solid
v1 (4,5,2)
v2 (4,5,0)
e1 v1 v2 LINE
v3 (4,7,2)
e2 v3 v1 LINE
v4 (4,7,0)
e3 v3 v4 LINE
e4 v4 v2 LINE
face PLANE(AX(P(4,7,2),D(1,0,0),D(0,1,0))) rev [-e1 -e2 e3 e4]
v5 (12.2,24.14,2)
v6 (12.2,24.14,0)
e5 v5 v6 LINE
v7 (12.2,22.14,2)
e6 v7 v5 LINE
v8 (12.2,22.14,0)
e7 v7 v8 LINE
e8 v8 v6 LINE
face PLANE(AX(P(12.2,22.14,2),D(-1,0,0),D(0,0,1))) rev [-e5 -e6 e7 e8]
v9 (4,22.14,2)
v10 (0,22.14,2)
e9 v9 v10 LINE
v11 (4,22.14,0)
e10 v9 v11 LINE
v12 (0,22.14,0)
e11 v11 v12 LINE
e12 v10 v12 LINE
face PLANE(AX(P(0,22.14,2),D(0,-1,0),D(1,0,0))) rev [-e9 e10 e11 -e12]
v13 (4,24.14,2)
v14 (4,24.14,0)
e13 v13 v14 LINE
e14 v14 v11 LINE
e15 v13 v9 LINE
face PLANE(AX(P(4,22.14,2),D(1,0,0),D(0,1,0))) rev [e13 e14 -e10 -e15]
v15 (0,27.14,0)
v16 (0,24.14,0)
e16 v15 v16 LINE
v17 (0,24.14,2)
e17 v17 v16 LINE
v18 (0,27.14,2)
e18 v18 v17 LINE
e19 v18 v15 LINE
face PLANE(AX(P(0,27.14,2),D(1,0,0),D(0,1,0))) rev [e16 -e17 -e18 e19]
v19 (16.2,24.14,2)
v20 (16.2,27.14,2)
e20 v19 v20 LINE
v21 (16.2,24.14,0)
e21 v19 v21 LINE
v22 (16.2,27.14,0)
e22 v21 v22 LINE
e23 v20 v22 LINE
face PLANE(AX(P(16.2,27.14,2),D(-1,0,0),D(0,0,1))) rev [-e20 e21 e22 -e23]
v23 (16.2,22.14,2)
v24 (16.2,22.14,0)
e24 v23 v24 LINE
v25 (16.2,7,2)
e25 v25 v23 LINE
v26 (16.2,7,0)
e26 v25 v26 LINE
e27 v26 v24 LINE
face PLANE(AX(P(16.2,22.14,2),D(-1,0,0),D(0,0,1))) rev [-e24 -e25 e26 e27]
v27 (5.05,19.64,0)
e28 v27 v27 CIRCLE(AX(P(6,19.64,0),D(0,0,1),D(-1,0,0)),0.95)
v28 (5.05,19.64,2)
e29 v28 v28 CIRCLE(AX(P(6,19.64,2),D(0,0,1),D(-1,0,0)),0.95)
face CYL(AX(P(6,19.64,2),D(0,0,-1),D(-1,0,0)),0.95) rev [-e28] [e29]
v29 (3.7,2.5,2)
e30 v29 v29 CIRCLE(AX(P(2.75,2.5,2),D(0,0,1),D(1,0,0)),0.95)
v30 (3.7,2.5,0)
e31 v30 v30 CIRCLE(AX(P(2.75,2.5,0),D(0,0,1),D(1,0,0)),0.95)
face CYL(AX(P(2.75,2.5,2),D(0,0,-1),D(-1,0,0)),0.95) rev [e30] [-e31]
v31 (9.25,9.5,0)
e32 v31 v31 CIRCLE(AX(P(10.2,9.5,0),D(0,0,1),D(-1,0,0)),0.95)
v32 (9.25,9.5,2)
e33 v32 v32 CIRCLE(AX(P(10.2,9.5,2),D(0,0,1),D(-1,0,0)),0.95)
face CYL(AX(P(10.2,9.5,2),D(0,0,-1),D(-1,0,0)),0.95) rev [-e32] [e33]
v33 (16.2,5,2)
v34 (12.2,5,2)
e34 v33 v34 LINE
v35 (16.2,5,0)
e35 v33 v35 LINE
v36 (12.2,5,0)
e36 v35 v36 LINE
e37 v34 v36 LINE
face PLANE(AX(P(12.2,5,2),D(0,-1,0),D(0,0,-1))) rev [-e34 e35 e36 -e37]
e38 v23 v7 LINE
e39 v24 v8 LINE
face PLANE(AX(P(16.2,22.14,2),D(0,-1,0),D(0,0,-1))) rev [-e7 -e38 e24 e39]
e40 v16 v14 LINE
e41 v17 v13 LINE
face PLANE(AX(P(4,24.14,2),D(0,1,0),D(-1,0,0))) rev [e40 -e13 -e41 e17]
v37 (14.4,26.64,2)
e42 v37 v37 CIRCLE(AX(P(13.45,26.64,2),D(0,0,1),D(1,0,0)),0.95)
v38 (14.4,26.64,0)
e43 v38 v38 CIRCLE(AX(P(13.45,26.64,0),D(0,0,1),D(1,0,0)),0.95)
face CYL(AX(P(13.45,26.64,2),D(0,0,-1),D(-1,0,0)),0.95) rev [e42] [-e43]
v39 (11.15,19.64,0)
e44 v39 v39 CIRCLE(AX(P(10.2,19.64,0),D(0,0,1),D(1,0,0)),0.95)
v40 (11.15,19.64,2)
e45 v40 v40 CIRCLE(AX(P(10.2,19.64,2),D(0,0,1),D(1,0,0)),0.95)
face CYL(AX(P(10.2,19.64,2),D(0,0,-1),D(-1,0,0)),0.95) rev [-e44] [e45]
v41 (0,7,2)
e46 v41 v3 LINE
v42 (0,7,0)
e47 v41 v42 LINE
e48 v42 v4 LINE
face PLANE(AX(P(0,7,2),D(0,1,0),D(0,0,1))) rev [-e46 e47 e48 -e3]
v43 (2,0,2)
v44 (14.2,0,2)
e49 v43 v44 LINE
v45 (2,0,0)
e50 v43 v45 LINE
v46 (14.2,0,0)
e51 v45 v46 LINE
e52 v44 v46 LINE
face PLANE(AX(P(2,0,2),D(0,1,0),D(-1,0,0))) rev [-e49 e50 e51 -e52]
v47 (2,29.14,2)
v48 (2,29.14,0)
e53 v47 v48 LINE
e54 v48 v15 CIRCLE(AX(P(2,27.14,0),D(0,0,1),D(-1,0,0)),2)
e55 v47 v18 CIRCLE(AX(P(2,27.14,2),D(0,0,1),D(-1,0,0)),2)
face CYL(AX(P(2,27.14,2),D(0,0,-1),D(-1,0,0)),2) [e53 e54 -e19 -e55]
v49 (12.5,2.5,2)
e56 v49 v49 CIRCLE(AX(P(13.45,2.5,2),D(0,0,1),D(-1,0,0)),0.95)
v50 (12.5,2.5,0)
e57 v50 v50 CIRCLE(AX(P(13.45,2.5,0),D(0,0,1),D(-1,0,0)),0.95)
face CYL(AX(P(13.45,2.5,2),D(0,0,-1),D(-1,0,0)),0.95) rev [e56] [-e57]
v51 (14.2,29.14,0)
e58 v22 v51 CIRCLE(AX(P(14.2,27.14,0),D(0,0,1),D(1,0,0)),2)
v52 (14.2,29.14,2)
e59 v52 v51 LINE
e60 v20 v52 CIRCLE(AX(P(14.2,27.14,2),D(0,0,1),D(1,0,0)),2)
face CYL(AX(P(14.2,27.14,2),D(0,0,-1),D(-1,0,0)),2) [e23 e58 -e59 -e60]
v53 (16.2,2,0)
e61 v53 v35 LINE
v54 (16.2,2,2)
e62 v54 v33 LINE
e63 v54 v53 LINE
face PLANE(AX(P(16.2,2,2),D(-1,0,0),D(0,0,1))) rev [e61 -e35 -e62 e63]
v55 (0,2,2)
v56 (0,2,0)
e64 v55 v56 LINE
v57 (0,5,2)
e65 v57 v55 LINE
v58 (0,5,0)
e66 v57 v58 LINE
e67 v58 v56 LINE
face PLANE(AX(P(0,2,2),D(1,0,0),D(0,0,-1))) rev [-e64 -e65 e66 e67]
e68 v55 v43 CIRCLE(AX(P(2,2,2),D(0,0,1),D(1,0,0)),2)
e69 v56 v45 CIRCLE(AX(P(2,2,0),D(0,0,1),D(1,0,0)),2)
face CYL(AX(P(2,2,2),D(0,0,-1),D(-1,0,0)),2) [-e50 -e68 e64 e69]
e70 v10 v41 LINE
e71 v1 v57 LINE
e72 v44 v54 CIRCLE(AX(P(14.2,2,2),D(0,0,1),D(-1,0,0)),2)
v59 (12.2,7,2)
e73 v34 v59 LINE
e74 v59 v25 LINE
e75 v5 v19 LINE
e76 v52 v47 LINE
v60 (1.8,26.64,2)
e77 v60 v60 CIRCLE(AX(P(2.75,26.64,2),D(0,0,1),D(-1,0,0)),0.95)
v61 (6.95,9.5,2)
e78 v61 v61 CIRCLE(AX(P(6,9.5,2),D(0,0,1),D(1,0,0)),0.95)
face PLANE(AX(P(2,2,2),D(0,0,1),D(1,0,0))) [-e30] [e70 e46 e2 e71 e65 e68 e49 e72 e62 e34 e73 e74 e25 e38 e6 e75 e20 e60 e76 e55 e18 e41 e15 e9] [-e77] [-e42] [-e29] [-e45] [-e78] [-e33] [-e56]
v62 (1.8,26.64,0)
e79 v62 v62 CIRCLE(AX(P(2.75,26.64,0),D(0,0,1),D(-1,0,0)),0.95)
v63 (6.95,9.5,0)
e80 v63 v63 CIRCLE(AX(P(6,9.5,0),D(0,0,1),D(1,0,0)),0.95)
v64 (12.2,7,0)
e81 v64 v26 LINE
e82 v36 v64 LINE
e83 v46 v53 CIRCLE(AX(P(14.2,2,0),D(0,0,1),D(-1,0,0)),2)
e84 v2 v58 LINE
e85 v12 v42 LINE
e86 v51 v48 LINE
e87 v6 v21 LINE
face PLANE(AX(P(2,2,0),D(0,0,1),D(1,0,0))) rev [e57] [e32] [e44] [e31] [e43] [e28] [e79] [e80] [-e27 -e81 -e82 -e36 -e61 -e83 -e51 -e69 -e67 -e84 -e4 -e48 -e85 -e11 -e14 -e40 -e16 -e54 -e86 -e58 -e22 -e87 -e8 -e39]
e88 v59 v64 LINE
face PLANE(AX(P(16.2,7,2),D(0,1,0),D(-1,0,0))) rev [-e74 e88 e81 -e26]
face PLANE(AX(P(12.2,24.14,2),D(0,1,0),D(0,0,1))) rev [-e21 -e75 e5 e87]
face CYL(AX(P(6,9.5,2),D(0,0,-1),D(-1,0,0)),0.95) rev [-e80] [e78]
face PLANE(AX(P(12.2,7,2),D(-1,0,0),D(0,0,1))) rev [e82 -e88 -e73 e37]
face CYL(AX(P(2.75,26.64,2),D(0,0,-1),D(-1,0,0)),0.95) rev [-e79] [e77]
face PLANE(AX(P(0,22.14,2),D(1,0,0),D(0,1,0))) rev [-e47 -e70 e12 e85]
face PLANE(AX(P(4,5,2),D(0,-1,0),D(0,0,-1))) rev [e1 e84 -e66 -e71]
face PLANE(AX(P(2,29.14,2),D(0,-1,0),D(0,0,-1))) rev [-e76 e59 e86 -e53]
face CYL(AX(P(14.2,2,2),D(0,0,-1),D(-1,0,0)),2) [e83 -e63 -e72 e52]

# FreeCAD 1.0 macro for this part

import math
import FreeCAD as App
import Part
import Sketcher
Q = App.Units.Quantity

doc = App.newDocument("Part")
body = doc.addObject("PartDesign::Body", "Body")

# Sketch on XY plane
sketch1 = body.newObject("Sketcher::SketchObject", "Sketch")
sketch1.AttachmentSupport = (doc.getObject("XY_Plane"), [""])
sketch1.MapMode = "FlatFace"
sketch1.addGeometry([
    Part.LineSegment(App.Vector(0, 22.14, 0), App.Vector(0, 7, 0)),  # 0
    Part.LineSegment(App.Vector(0, 7, 0), App.Vector(4, 7, 0)),  # 1
    Part.LineSegment(App.Vector(4, 7, 0), App.Vector(4, 5, 0)),  # 2
    Part.LineSegment(App.Vector(4, 5, 0), App.Vector(0, 5, 0)),  # 3
    Part.LineSegment(App.Vector(0, 5, 0), App.Vector(0, 2, 0)),  # 4
    Part.ArcOfCircle(Part.Circle(App.Vector(2, 2, 0), App.Vector(0, 0, 1), 2), math.radians(-180), math.radians(-90)),  # 5
    Part.LineSegment(App.Vector(2, 0, 0), App.Vector(14.2, 0, 0)),  # 6
    Part.ArcOfCircle(Part.Circle(App.Vector(14.2, 2, 0), App.Vector(0, 0, 1), 2), math.radians(-90), math.radians(0)),  # 7
    Part.LineSegment(App.Vector(16.2, 2, 0), App.Vector(16.2, 5, 0)),  # 8
    Part.LineSegment(App.Vector(16.2, 5, 0), App.Vector(12.2, 5, 0)),  # 9
    Part.LineSegment(App.Vector(12.2, 5, 0), App.Vector(12.2, 7, 0)),  # 10
    Part.LineSegment(App.Vector(12.2, 7, 0), App.Vector(16.2, 7, 0)),  # 11
    Part.LineSegment(App.Vector(16.2, 7, 0), App.Vector(16.2, 22.14, 0)),  # 12
    Part.LineSegment(App.Vector(16.2, 22.14, 0), App.Vector(12.2, 22.14, 0)),  # 13
    Part.LineSegment(App.Vector(12.2, 22.14, 0), App.Vector(12.2, 24.14, 0)),  # 14
    Part.LineSegment(App.Vector(12.2, 24.14, 0), App.Vector(16.2, 24.14, 0)),  # 15
    Part.LineSegment(App.Vector(16.2, 24.14, 0), App.Vector(16.2, 27.14, 0)),  # 16
    Part.ArcOfCircle(Part.Circle(App.Vector(14.2, 27.14, 0), App.Vector(0, 0, 1), 2), math.radians(0), math.radians(90)),  # 17
    Part.LineSegment(App.Vector(14.2, 29.14, 0), App.Vector(2, 29.14, 0)),  # 18
    Part.ArcOfCircle(Part.Circle(App.Vector(2, 27.14, 0), App.Vector(0, 0, 1), 2), math.radians(90), math.radians(180)),  # 19
    Part.LineSegment(App.Vector(0, 27.14, 0), App.Vector(0, 24.14, 0)),  # 20
    Part.LineSegment(App.Vector(0, 24.14, 0), App.Vector(4, 24.14, 0)),  # 21
    Part.LineSegment(App.Vector(4, 24.14, 0), App.Vector(4, 22.14, 0)),  # 22
    Part.LineSegment(App.Vector(4, 22.14, 0), App.Vector(0, 22.14, 0)),  # 23
    Part.Circle(App.Vector(2.75, 2.5, 0), App.Vector(0, 0, 1), 0.95),  # 24
    Part.Circle(App.Vector(6, 9.5, 0), App.Vector(0, 0, 1), 0.95),  # 25
    Part.Circle(App.Vector(13.45, 2.5, 0), App.Vector(0, 0, 1), 0.95),  # 26
    Part.Circle(App.Vector(10.2, 9.5, 0), App.Vector(0, 0, 1), 0.95),  # 27
    Part.Circle(App.Vector(6, 19.64, 0), App.Vector(0, 0, 1), 0.95),  # 28
    Part.Circle(App.Vector(2.75, 26.64, 0), App.Vector(0, 0, 1), 0.95),  # 29
    Part.Circle(App.Vector(10.2, 19.64, 0), App.Vector(0, 0, 1), 0.95),  # 30
    Part.Circle(App.Vector(13.45, 26.64, 0), App.Vector(0, 0, 1), 0.95),  # 31
], False)
sketch1.addConstraint([
    Sketcher.Constraint("Coincident", 0, 2, 1, 1),
    Sketcher.Constraint("Coincident", 1, 2, 2, 1),
    Sketcher.Constraint("Coincident", 2, 2, 3, 1),
    Sketcher.Constraint("Coincident", 3, 2, 4, 1),
    Sketcher.Constraint("Tangent", 4, 2, 5, 1),
    Sketcher.Constraint("Tangent", 5, 2, 6, 1),
    Sketcher.Constraint("Tangent", 6, 2, 7, 1),
    Sketcher.Constraint("Tangent", 7, 2, 8, 1),
    Sketcher.Constraint("Coincident", 8, 2, 9, 1),
    Sketcher.Constraint("Coincident", 9, 2, 10, 1),
    Sketcher.Constraint("Coincident", 10, 2, 11, 1),
    Sketcher.Constraint("Coincident", 11, 2, 12, 1),
    Sketcher.Constraint("Coincident", 12, 2, 13, 1),
    Sketcher.Constraint("Coincident", 13, 2, 14, 1),
    Sketcher.Constraint("Coincident", 14, 2, 15, 1),
    Sketcher.Constraint("Coincident", 15, 2, 16, 1),
    Sketcher.Constraint("Tangent", 16, 2, 17, 1),
    Sketcher.Constraint("Tangent", 17, 2, 18, 1),
    Sketcher.Constraint("Tangent", 18, 2, 19, 1),
    Sketcher.Constraint("Tangent", 19, 2, 20, 1),
    Sketcher.Constraint("Coincident", 20, 2, 21, 1),
    Sketcher.Constraint("Coincident", 21, 2, 22, 1),
    Sketcher.Constraint("Coincident", 22, 2, 23, 1),
    Sketcher.Constraint("Coincident", 23, 2, 0, 1),
    Sketcher.Constraint("Vertical", 0),
    Sketcher.Constraint("Horizontal", 1),
    Sketcher.Constraint("Vertical", 2),
    Sketcher.Constraint("Horizontal", 3),
    Sketcher.Constraint("Vertical", 4),
    Sketcher.Constraint("Horizontal", 6),
    Sketcher.Constraint("Vertical", 8),
    Sketcher.Constraint("Horizontal", 9),
    Sketcher.Constraint("Vertical", 10),
    Sketcher.Constraint("Horizontal", 11),
    Sketcher.Constraint("Vertical", 12),
    Sketcher.Constraint("Horizontal", 13),
    Sketcher.Constraint("Vertical", 14),
    Sketcher.Constraint("Horizontal", 15),
    Sketcher.Constraint("Vertical", 16),
    Sketcher.Constraint("Horizontal", 18),
    Sketcher.Constraint("Vertical", 20),
    Sketcher.Constraint("Horizontal", 21),
    Sketcher.Constraint("Vertical", 22),
    Sketcher.Constraint("Horizontal", 23),
    Sketcher.Constraint("Equal", 5, 7),
    Sketcher.Constraint("Equal", 7, 17),
    Sketcher.Constraint("Equal", 17, 19),
    Sketcher.Constraint("Equal", 24, 25),
    Sketcher.Constraint("Equal", 25, 26),
    Sketcher.Constraint("Equal", 26, 27),
    Sketcher.Constraint("Equal", 27, 28),
    Sketcher.Constraint("Equal", 28, 29),
    Sketcher.Constraint("Equal", 29, 30),
    Sketcher.Constraint("Equal", 30, 31),
    Sketcher.Constraint("PointOnObject", 0, 2, -2),
    Sketcher.Constraint("PointOnObject", 3, 2, -2),
    Sketcher.Constraint("PointOnObject", 5, 2, -1),
    Sketcher.Constraint("PointOnObject", 19, 2, -2),
    Sketcher.Constraint("Horizontal", 24, 3, 26, 3),
    Sketcher.Constraint("Horizontal", 25, 3, 27, 3),
    Sketcher.Constraint("Horizontal", 28, 3, 30, 3),
    Sketcher.Constraint("Horizontal", 29, 3, 31, 3),
    Sketcher.Constraint("Horizontal", 3, 2, 8, 2),
    Sketcher.Constraint("Horizontal", 1, 2, 10, 2),
    Sketcher.Constraint("Horizontal", 15, 2, 20, 2),
    Sketcher.Constraint("Horizontal", 13, 2, 22, 2),
    Sketcher.Constraint("Vertical", 7, 3, 17, 3),
    Sketcher.Constraint("Vertical", 25, 3, 28, 3),
    Sketcher.Constraint("Vertical", 24, 3, 29, 3),
    Sketcher.Constraint("Vertical", 27, 3, 30, 3),
    Sketcher.Constraint("Vertical", 26, 3, 31, 3),
    Sketcher.Constraint("Vertical", 8, 2, 11, 2),
    Sketcher.Constraint("Vertical", 10, 2, 13, 2),
    Sketcher.Constraint("Vertical", 2, 2, 21, 2),
    Sketcher.Constraint("Equal", 3, 9),
    Sketcher.Constraint("Equal", 10, 14),
    Sketcher.Constraint("Equal", 8, 16),
    Sketcher.Constraint("Radius", 5, Q("2 mm")),
    Sketcher.Constraint("Diameter", 24, Q("1.9 mm")),
    Sketcher.Constraint("DistanceX", 1, 1, 1, 2, Q("4 mm")),
    Sketcher.Constraint("DistanceY", 2, 2, 2, 1, Q("2 mm")),
    Sketcher.Constraint("DistanceY", 4, 2, 4, 1, Q("3 mm")),
    Sketcher.Constraint("DistanceX", 6, 1, 6, 2, Q("12.2 mm")),
    Sketcher.Constraint("DistanceX", -1, 1, 25, 3, Q("6 mm")),
    Sketcher.Constraint("DistanceY", 24, 3, 25, 3, Q("7 mm")),
    Sketcher.Constraint("DistanceX", 27, 3, 7, 3, Q("4 mm")),
    Sketcher.Constraint("DistanceY", 28, 3, 29, 3, Q("7 mm")),
    Sketcher.Constraint("DistanceY", 0, 2, 0, 1, Q("15.14 mm")),
    Sketcher.Constraint("DistanceY", -1, 1, 24, 3, Q("2.5 mm")),
    Sketcher.Constraint("DistanceX", 24, 3, 26, 3, Q("10.7 mm")),
    Sketcher.Constraint("DistanceY", 28, 3, 19, 3, Q("7.5 mm")),
    Sketcher.Constraint("DistanceX", -1, 1, 24, 3, Q("2.75 mm")),
])
pad1 = body.newObject("PartDesign::Pad", "Pad")
pad1.Profile = sketch1
pad1.Length = 2

doc.recompute()
